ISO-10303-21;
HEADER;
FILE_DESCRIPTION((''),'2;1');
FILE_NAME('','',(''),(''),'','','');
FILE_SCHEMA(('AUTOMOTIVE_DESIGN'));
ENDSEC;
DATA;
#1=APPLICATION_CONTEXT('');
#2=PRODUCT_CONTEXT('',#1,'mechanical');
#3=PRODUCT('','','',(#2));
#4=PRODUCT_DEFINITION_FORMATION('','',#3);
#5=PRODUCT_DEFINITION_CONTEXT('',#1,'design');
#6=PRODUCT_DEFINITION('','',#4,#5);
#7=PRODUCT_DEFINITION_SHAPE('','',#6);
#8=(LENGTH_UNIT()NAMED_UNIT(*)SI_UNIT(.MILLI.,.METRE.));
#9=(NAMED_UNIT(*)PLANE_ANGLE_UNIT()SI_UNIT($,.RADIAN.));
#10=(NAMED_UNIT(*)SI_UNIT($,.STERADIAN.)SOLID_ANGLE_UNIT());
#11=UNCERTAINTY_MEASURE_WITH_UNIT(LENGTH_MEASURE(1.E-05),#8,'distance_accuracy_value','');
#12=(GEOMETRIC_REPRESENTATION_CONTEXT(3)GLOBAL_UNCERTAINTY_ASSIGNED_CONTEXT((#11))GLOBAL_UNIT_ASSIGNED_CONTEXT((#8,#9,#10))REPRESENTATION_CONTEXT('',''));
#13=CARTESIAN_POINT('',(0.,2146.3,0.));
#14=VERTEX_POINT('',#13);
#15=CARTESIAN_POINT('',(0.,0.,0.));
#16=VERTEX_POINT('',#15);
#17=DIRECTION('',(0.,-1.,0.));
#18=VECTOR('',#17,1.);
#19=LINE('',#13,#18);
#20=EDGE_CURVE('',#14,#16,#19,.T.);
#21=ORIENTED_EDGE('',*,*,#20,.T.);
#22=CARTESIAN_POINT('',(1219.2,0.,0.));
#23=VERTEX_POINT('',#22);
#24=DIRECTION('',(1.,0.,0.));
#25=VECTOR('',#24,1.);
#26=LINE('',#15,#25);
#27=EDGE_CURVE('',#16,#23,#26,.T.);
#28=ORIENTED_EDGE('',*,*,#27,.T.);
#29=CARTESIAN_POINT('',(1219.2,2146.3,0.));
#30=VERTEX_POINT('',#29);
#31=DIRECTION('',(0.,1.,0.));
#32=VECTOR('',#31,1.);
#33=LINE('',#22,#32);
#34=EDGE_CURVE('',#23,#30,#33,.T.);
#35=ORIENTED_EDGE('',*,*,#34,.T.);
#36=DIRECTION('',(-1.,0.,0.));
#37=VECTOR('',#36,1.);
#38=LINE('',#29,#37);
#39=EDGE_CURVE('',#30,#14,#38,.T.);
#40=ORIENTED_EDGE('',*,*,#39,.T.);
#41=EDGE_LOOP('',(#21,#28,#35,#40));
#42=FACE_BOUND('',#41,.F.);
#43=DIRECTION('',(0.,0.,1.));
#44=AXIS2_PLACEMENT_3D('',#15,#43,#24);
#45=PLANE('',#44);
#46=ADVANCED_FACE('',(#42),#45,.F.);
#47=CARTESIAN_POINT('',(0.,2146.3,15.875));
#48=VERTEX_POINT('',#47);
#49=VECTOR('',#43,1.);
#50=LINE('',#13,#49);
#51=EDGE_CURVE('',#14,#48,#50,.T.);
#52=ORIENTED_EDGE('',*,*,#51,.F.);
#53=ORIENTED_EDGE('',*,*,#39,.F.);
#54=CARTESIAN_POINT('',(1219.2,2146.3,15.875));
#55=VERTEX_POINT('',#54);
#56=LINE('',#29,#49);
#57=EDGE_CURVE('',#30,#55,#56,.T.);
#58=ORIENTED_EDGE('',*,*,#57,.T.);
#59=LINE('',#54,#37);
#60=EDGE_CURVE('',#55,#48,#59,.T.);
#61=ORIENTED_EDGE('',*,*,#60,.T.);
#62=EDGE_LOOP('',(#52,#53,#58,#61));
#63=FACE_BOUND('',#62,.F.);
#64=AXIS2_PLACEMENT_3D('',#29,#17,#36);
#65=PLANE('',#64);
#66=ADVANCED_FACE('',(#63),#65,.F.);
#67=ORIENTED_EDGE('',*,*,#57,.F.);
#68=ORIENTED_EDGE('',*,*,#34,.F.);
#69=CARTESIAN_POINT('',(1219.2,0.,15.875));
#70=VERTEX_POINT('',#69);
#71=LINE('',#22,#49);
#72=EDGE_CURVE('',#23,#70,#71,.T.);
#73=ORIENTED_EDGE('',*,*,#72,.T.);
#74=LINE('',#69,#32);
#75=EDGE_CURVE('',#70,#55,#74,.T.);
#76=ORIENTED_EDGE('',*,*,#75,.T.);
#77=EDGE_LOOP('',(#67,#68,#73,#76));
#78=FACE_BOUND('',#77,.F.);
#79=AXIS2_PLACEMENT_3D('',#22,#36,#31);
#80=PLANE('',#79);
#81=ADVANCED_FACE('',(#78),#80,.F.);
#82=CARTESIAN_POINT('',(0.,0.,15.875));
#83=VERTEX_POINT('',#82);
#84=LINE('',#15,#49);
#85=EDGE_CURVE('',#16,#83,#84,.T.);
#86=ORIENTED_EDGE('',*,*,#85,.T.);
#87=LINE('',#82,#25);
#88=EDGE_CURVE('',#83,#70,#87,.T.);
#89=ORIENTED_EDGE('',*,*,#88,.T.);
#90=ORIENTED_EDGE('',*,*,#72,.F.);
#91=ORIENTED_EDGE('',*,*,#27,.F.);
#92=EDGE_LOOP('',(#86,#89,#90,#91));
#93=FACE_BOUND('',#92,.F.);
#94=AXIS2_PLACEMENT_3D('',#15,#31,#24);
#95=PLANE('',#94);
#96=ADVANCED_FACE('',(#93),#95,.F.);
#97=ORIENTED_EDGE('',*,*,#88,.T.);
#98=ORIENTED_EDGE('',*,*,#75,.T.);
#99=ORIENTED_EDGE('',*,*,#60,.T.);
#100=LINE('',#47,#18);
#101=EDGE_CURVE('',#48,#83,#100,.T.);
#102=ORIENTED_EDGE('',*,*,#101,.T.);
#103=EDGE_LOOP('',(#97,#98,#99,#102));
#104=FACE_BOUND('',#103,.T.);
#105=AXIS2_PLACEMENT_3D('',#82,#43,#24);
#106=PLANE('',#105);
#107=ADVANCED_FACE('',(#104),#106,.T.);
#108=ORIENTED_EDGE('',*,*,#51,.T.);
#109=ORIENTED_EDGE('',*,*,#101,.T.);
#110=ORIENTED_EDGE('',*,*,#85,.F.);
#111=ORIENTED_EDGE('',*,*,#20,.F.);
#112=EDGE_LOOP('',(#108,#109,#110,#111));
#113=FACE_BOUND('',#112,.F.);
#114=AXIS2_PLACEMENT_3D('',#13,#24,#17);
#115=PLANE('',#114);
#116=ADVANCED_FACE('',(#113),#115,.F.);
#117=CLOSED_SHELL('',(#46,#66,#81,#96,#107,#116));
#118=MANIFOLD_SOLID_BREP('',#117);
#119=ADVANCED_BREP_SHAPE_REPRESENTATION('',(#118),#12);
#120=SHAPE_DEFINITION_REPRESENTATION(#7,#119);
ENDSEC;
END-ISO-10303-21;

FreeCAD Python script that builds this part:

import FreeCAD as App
import Part
import Sketcher

V = App.Vector
Q = App.Units.Quantity

doc = App.newDocument("Part")
body = doc.addObject("PartDesign::Body", "Body")

# Sketch on XY plane
sketch1 = doc.addObject("Sketcher::SketchObject", "Sketch")
body.addObject(sketch1)
sketch1.AttachmentSupport = (doc.XY_Plane, [""])
sketch1.MapMode = "FlatFace"
sketch1.addGeometry([
    Part.LineSegment(V(0, 2146, 0), V(0, 0, 0)),
    Part.LineSegment(V(0, 0, 0), V(1219, 0, 0)),
    Part.LineSegment(V(1219, 0, 0), V(1219, 2146, 0)),
    Part.LineSegment(V(1219, 2146, 0), V(0, 2146, 0)),
], False)
sketch1.addConstraint([
    Sketcher.Constraint("Coincident", 0, 2, 1, 1),
    Sketcher.Constraint("Coincident", 1, 2, 2, 1),
    Sketcher.Constraint("Coincident", 2, 2, 3, 1),
    Sketcher.Constraint("Coincident", 3, 2, 0, 1),
    Sketcher.Constraint("Vertical", 0),
    Sketcher.Constraint("Horizontal", 1),
    Sketcher.Constraint("Vertical", 2),
    Sketcher.Constraint("Horizontal", 3),
    Sketcher.Constraint("Coincident", 0, 2, -1, 1),
    Sketcher.Constraint("DistanceX", 1, 1, 1, 2, Q("48 in")),
    Sketcher.Constraint("DistanceY", 0, 2, 0, 1, Q("84.5 in")),
])
pad1 = doc.addObject("PartDesign::Pad", "Pad")
body.addObject(pad1)
pad1.Profile = sketch1
pad1.Length = Q("0.625 in")

doc.recompute()
